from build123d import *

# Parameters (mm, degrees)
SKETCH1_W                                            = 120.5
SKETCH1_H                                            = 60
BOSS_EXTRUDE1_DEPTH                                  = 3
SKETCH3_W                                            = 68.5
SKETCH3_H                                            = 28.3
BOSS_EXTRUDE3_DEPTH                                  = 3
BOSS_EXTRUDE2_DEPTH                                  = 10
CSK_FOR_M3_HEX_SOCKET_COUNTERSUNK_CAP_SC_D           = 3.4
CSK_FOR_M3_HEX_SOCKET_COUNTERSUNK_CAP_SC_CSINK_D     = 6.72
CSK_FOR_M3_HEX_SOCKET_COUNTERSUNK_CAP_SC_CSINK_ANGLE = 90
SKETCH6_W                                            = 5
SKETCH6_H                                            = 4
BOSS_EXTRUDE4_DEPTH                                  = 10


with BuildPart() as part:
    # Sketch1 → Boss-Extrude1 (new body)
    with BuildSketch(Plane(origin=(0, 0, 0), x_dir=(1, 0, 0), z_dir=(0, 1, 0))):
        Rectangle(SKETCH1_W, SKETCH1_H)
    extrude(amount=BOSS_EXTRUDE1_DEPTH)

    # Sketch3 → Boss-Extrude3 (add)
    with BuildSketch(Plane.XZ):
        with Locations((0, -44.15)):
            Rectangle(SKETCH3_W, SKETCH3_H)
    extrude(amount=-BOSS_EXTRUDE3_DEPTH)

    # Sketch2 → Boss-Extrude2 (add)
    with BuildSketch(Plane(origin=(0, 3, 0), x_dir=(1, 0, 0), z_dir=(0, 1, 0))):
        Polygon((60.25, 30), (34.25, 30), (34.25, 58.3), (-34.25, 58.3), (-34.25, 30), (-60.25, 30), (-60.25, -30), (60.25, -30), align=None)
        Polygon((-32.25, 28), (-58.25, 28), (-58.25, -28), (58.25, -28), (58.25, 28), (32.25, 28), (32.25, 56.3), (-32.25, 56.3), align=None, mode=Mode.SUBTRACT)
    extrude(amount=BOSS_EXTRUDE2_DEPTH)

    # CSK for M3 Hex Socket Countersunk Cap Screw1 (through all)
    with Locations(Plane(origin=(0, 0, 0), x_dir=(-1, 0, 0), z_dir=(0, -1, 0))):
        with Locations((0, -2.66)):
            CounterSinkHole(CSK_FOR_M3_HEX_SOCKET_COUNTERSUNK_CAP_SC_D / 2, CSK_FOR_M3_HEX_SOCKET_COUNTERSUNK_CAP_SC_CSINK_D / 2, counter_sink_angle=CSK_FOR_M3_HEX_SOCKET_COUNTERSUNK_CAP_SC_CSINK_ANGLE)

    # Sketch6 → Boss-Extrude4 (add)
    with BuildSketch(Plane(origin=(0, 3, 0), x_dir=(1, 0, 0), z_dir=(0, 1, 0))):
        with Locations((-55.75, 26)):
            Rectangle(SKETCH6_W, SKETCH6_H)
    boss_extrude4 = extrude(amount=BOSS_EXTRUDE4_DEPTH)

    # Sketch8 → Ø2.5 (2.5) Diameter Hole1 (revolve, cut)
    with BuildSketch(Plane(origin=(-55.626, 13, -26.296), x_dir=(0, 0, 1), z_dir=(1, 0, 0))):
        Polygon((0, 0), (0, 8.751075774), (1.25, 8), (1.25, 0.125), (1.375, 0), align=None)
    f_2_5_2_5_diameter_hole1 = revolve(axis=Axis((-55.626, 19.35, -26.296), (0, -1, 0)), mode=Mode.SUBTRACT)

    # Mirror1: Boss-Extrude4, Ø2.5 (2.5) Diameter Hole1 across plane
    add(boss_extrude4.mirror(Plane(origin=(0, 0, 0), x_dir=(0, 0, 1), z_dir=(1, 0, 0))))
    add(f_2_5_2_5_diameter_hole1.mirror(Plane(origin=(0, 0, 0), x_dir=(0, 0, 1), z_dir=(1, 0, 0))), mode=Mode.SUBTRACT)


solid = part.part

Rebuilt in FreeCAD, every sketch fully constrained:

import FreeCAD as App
import Part
import Sketcher

V = App.Vector
Q = App.Units.Quantity

doc = App.newDocument("Part")
body = doc.addObject("PartDesign::Body", "Body")

# Sketch on XZ plane
sketch1 = body.newObject("Sketcher::SketchObject", "Sketch")
sketch1.AttachmentSupport = (doc.getObject("XZ_Plane"), [""])
sketch1.MapMode = "FlatFace"
sketch1.addGeometry([
    Part.LineSegment(V(-60, -30, 0), V(-60, 30, 0)),
    Part.LineSegment(V(-60, 30, 0), V(60, 30, 0)),
    Part.LineSegment(V(60, 30, 0), V(60, -30, 0)),
    Part.LineSegment(V(60, -30, 0), V(-60, -30, 0)),
], False)
sketch1.addConstraint([
    Sketcher.Constraint("Coincident", 0, 2, 1, 1),
    Sketcher.Constraint("Coincident", 1, 2, 2, 1),
    Sketcher.Constraint("Coincident", 2, 2, 3, 1),
    Sketcher.Constraint("Coincident", 3, 2, 0, 1),
    Sketcher.Constraint("Vertical", 0),
    Sketcher.Constraint("Horizontal", 1),
    Sketcher.Constraint("Vertical", 2),
    Sketcher.Constraint("Horizontal", 3),
    Sketcher.Constraint("Symmetric", 0, 2, 2, 2, -1, 1),
    Sketcher.Constraint("DistanceY", 0, 1, 0, 2, Q("60 mm")),
    Sketcher.Constraint("DistanceX", 1, 1, 1, 2, Q("120.5 mm")),
])
pad1 = body.newObject("PartDesign::Pad", "Pad")
pad1.Profile = sketch1
pad1.Length = 3
pad1.Reversed = True

# Sketch on XZ plane
sketch2 = body.newObject("Sketcher::SketchObject", "Sketch001")
sketch2.AttachmentSupport = (doc.getObject("XZ_Plane"), [""])
sketch2.MapMode = "FlatFace"
sketch2.addGeometry([
    Part.LineSegment(V(-34, -30, 0), V(-34, -58, 0)),
    Part.LineSegment(V(-34, -58, 0), V(34, -58, 0)),
    Part.LineSegment(V(34, -58, 0), V(34, -30, 0)),
    Part.LineSegment(V(34, -30, 0), V(-34, -30, 0)),
], False)
sketch2.addConstraint([
    Sketcher.Constraint("Coincident", 0, 2, 1, 1),
    Sketcher.Constraint("Coincident", 1, 2, 2, 1),
    Sketcher.Constraint("Coincident", 2, 2, 3, 1),
    Sketcher.Constraint("Coincident", 3, 2, 0, 1),
    Sketcher.Constraint("Vertical", 0),
    Sketcher.Constraint("Horizontal", 1),
    Sketcher.Constraint("Vertical", 2),
    Sketcher.Constraint("Horizontal", 3),
    Sketcher.Constraint("DistanceX", 1, 1, 1, 2, Q("68.5 mm")),
    Sketcher.Constraint("DistanceY", 0, 2, 0, 1, Q("28.3 mm")),
    Sketcher.Constraint("DistanceY", 2, 2, -1, 1, Q("30 mm")),
    Sketcher.Constraint("DistanceX", 0, 2, -1, 1, Q("34.25 mm")),
])
pad2 = body.newObject("PartDesign::Pad", "Pad001")
pad2.Profile = sketch2
pad2.Length = 3
pad2.Reversed = True

# Sketch on XZ plane
sketch3 = body.newObject("Sketcher::SketchObject", "Sketch002")
sketch3.AttachmentSupport = (doc.getObject("XZ_Plane"), [""])
sketch3.MapMode = "FlatFace"
sketch3.AttachmentOffset = App.Placement(V(0, 0, -3), App.Rotation())
sketch3.addGeometry([
    Part.LineSegment(V(60, -30, 0), V(34, -30, 0)),  # 0
    Part.LineSegment(V(34, -30, 0), V(34, -58, 0)),  # 1
    Part.LineSegment(V(34, -58, 0), V(-34, -58, 0)),  # 2
    Part.LineSegment(V(-34, -58, 0), V(-34, -30, 0)),  # 3
    Part.LineSegment(V(-34, -30, 0), V(-60, -30, 0)),  # 4
    Part.LineSegment(V(-60, -30, 0), V(-60, 30, 0)),  # 5
    Part.LineSegment(V(-60, 30, 0), V(60, 30, 0)),  # 6
    Part.LineSegment(V(60, 30, 0), V(60, -30, 0)),  # 7
    Part.LineSegment(V(-58, -28, 0), V(-32, -28, 0)),  # 8
    Part.LineSegment(V(-32, -28, 0), V(-32, -56, 0)),  # 9
    Part.LineSegment(V(-32, -56, 0), V(32, -56, 0)),  # 10
    Part.LineSegment(V(32, -56, 0), V(32, -28, 0)),  # 11
    Part.LineSegment(V(32, -28, 0), V(58, -28, 0)),  # 12
    Part.LineSegment(V(58, -28, 0), V(58, 28, 0)),  # 13
    Part.LineSegment(V(58, 28, 0), V(-58, 28, 0)),  # 14
    Part.LineSegment(V(-58, 28, 0), V(-58, -28, 0)),  # 15
], False)
sketch3.addConstraint([
    Sketcher.Constraint("Coincident", 0, 2, 1, 1),
    Sketcher.Constraint("Coincident", 1, 2, 2, 1),
    Sketcher.Constraint("Coincident", 2, 2, 3, 1),
    Sketcher.Constraint("Coincident", 3, 2, 4, 1),
    Sketcher.Constraint("Coincident", 4, 2, 5, 1),
    Sketcher.Constraint("Coincident", 5, 2, 6, 1),
    Sketcher.Constraint("Coincident", 6, 2, 7, 1),
    Sketcher.Constraint("Coincident", 7, 2, 0, 1),
    Sketcher.Constraint("Coincident", 8, 2, 9, 1),
    Sketcher.Constraint("Coincident", 9, 2, 10, 1),
    Sketcher.Constraint("Coincident", 10, 2, 11, 1),
    Sketcher.Constraint("Coincident", 11, 2, 12, 1),
    Sketcher.Constraint("Coincident", 12, 2, 13, 1),
    Sketcher.Constraint("Coincident", 13, 2, 14, 1),
    Sketcher.Constraint("Coincident", 14, 2, 15, 1),
    Sketcher.Constraint("Coincident", 15, 2, 8, 1),
    Sketcher.Constraint("Horizontal", 0),
    Sketcher.Constraint("Vertical", 1),
    Sketcher.Constraint("Horizontal", 2),
    Sketcher.Constraint("Vertical", 3),
    Sketcher.Constraint("Horizontal", 4),
    Sketcher.Constraint("Vertical", 5),
    Sketcher.Constraint("Horizontal", 6),
    Sketcher.Constraint("Vertical", 7),
    Sketcher.Constraint("Horizontal", 8),
    Sketcher.Constraint("Vertical", 9),
    Sketcher.Constraint("Horizontal", 10),
    Sketcher.Constraint("Vertical", 11),
    Sketcher.Constraint("Horizontal", 12),
    Sketcher.Constraint("Vertical", 13),
    Sketcher.Constraint("Horizontal", 14),
    Sketcher.Constraint("Vertical", 15),
    Sketcher.Constraint("Symmetric", 4, 2, 6, 2, -1, 1),
    Sketcher.Constraint("Symmetric", 12, 2, 14, 2, -1, 1),
    Sketcher.Constraint("Symmetric", 0, 2, 3, 2, -2),
    Sketcher.Constraint("Symmetric", 8, 2, 11, 2, -2),
    Sketcher.Constraint("Equal", 4, 8),
    Sketcher.Constraint("Equal", 3, 9),
    Sketcher.Constraint("DistanceX", 0, 2, 0, 1, Q("26 mm")),
    Sketcher.Constraint("DistanceY", 5, 1, 5, 2, Q("60 mm")),
    Sketcher.Constraint("DistanceY", 13, 1, 13, 2, Q("56 mm")),
    Sketcher.Constraint("DistanceX", 2, 2, 2, 1, Q("68.5 mm")),
    Sketcher.Constraint("DistanceX", 10, 1, 10, 2, Q("64.5 mm")),
    Sketcher.Constraint("DistanceY", 1, 2, 1, 1, Q("28.3 mm")),
])
pad3 = body.newObject("PartDesign::Pad", "Pad002")
pad3.Profile = sketch3
pad3.Length = 10
pad3.Reversed = True

# Sketch on XZ plane
sketch4 = body.newObject("Sketcher::SketchObject", "Sketch003")
sketch4.AttachmentSupport = (doc.getObject("XZ_Plane"), [""])
sketch4.MapMode = "FlatFace"
sketch4.addGeometry(Part.Circle(V(0, 2.7, 0), V(0, 0, 1), 1.7), False)
sketch4.addConstraint([
    Sketcher.Constraint("PointOnObject", 0, 3, -2),
    Sketcher.Constraint("Diameter", 0, Q("3.4 mm")),
    Sketcher.Constraint("DistanceY", -1, 1, 0, 3, Q("2.66 mm")),
])
doc.recompute()
hole = body.newObject("PartDesign::Hole", "Hole")
hole.Profile = sketch4
hole.ThreadType = "None"
hole.Diameter = 3.4
hole.DepthType = "ThroughAll"
hole.HoleCutType = "Countersink"
hole.HoleCutDiameter = 6.72
hole.HoleCutCountersinkAngle = 90

# Sketch on XZ plane
sketch5 = body.newObject("Sketcher::SketchObject", "Sketch004")
sketch5.AttachmentSupport = (doc.getObject("XZ_Plane"), [""])
sketch5.MapMode = "FlatFace"
sketch5.AttachmentOffset = App.Placement(V(0, 0, -3), App.Rotation())
sketch5.addGeometry([
    Part.LineSegment(V(-58.2, -28, 0), V(-58.2, -24, 0)),
    Part.LineSegment(V(-58.2, -24, 0), V(-53.2, -24, 0)),
    Part.LineSegment(V(-53.2, -24, 0), V(-53.2, -28, 0)),
    Part.LineSegment(V(-53.2, -28, 0), V(-58.2, -28, 0)),
], False)
sketch5.addConstraint([
    Sketcher.Constraint("Coincident", 0, 2, 1, 1),
    Sketcher.Constraint("Coincident", 1, 2, 2, 1),
    Sketcher.Constraint("Coincident", 2, 2, 3, 1),
    Sketcher.Constraint("Coincident", 3, 2, 0, 1),
    Sketcher.Constraint("Vertical", 0),
    Sketcher.Constraint("Horizontal", 1),
    Sketcher.Constraint("Vertical", 2),
    Sketcher.Constraint("Horizontal", 3),
    Sketcher.Constraint("DistanceX", 1, 1, 1, 2, Q("5 mm")),
    Sketcher.Constraint("DistanceY", 0, 1, 0, 2, Q("4 mm")),
    Sketcher.Constraint("DistanceY", 0, 2, -1, 1, Q("24 mm")),
    Sketcher.Constraint("DistanceX", 0, 2, -1, 1, Q("58.25 mm")),
])
pad4 = body.newObject("PartDesign::Pad", "Pad003")
pad4.Profile = sketch5
pad4.Length = 10
pad4.Reversed = True

# Sketch on YZ plane
sketch6 = body.newObject("Sketcher::SketchObject", "Sketch005")
sketch6.AttachmentSupport = (doc.getObject("YZ_Plane"), [""])
sketch6.MapMode = "FlatFace"
sketch6.AttachmentOffset = App.Placement(V(0, 0, -55.626), App.Rotation())
sketch6.addGeometry([
    Part.LineSegment(V(4.25, -26.3, 0), V(13, -26.3, 0)),  # 0
    Part.LineSegment(V(13, -26.3, 0), V(13, -24.92, 0)),  # 1
    Part.LineSegment(V(13, -24.92, 0), V(12.88, -25.05, 0)),  # 2
    Part.LineSegment(V(12.88, -25.05, 0), V(5, -25.05, 0)),  # 3
    Part.LineSegment(V(5, -25.05, 0), V(4.25, -26.3, 0)),  # 4
], False)
sketch6.addGeometry(Part.LineSegment(V(13, -26.3, 0), V(4.25, -26.3, 0)), True)  # axis
sketch6.addConstraint([
    Sketcher.Constraint("Coincident", 0, 2, 1, 1),
    Sketcher.Constraint("Coincident", 1, 2, 2, 1),
    Sketcher.Constraint("Coincident", 2, 2, 3, 1),
    Sketcher.Constraint("Coincident", 3, 2, 4, 1),
    Sketcher.Constraint("Coincident", 4, 2, 0, 1),
    Sketcher.Constraint("Horizontal", 0),
    Sketcher.Constraint("Vertical", 1),
    Sketcher.Constraint("Horizontal", 3),
    Sketcher.Constraint("Horizontal", 5),
    Sketcher.Constraint("Coincident", 5, 1, 0, 2),
    Sketcher.Constraint("Equal", 0, 5),
    Sketcher.Constraint("Angle", 2, Q("-135 deg")),
    Sketcher.Constraint("Angle", 4, Q("-121 deg")),
    Sketcher.Constraint("DistanceX", -1, 1, 0, 2, Q("13 mm")),
    Sketcher.Constraint("DistanceX", -1, 1, 3, 2, Q("5 mm")),
    Sketcher.Constraint("DistanceX", 3, 2, 3, 1, Q("7.875 mm")),
    Sketcher.Constraint("DistanceY", 1, 1, 1, 2, Q("1.375 mm")),
    Sketcher.Constraint("DistanceY", 0, 2, -1, 1, Q("26.296 mm")),
])
groove = body.newObject("PartDesign::Groove", "Groove")
groove.Profile = sketch6
groove.ReferenceAxis = (sketch6, ["Axis0"])
groove.Angle = 360
doc.recompute()

mirrored = body.newObject("PartDesign::Mirrored", "Mirrored")
mirrored.Originals = [pad4, groove]
mirrored.MirrorPlane = (doc.getObject("YZ_Plane"), [""])
body.Tip = mirrored

doc.recompute()
